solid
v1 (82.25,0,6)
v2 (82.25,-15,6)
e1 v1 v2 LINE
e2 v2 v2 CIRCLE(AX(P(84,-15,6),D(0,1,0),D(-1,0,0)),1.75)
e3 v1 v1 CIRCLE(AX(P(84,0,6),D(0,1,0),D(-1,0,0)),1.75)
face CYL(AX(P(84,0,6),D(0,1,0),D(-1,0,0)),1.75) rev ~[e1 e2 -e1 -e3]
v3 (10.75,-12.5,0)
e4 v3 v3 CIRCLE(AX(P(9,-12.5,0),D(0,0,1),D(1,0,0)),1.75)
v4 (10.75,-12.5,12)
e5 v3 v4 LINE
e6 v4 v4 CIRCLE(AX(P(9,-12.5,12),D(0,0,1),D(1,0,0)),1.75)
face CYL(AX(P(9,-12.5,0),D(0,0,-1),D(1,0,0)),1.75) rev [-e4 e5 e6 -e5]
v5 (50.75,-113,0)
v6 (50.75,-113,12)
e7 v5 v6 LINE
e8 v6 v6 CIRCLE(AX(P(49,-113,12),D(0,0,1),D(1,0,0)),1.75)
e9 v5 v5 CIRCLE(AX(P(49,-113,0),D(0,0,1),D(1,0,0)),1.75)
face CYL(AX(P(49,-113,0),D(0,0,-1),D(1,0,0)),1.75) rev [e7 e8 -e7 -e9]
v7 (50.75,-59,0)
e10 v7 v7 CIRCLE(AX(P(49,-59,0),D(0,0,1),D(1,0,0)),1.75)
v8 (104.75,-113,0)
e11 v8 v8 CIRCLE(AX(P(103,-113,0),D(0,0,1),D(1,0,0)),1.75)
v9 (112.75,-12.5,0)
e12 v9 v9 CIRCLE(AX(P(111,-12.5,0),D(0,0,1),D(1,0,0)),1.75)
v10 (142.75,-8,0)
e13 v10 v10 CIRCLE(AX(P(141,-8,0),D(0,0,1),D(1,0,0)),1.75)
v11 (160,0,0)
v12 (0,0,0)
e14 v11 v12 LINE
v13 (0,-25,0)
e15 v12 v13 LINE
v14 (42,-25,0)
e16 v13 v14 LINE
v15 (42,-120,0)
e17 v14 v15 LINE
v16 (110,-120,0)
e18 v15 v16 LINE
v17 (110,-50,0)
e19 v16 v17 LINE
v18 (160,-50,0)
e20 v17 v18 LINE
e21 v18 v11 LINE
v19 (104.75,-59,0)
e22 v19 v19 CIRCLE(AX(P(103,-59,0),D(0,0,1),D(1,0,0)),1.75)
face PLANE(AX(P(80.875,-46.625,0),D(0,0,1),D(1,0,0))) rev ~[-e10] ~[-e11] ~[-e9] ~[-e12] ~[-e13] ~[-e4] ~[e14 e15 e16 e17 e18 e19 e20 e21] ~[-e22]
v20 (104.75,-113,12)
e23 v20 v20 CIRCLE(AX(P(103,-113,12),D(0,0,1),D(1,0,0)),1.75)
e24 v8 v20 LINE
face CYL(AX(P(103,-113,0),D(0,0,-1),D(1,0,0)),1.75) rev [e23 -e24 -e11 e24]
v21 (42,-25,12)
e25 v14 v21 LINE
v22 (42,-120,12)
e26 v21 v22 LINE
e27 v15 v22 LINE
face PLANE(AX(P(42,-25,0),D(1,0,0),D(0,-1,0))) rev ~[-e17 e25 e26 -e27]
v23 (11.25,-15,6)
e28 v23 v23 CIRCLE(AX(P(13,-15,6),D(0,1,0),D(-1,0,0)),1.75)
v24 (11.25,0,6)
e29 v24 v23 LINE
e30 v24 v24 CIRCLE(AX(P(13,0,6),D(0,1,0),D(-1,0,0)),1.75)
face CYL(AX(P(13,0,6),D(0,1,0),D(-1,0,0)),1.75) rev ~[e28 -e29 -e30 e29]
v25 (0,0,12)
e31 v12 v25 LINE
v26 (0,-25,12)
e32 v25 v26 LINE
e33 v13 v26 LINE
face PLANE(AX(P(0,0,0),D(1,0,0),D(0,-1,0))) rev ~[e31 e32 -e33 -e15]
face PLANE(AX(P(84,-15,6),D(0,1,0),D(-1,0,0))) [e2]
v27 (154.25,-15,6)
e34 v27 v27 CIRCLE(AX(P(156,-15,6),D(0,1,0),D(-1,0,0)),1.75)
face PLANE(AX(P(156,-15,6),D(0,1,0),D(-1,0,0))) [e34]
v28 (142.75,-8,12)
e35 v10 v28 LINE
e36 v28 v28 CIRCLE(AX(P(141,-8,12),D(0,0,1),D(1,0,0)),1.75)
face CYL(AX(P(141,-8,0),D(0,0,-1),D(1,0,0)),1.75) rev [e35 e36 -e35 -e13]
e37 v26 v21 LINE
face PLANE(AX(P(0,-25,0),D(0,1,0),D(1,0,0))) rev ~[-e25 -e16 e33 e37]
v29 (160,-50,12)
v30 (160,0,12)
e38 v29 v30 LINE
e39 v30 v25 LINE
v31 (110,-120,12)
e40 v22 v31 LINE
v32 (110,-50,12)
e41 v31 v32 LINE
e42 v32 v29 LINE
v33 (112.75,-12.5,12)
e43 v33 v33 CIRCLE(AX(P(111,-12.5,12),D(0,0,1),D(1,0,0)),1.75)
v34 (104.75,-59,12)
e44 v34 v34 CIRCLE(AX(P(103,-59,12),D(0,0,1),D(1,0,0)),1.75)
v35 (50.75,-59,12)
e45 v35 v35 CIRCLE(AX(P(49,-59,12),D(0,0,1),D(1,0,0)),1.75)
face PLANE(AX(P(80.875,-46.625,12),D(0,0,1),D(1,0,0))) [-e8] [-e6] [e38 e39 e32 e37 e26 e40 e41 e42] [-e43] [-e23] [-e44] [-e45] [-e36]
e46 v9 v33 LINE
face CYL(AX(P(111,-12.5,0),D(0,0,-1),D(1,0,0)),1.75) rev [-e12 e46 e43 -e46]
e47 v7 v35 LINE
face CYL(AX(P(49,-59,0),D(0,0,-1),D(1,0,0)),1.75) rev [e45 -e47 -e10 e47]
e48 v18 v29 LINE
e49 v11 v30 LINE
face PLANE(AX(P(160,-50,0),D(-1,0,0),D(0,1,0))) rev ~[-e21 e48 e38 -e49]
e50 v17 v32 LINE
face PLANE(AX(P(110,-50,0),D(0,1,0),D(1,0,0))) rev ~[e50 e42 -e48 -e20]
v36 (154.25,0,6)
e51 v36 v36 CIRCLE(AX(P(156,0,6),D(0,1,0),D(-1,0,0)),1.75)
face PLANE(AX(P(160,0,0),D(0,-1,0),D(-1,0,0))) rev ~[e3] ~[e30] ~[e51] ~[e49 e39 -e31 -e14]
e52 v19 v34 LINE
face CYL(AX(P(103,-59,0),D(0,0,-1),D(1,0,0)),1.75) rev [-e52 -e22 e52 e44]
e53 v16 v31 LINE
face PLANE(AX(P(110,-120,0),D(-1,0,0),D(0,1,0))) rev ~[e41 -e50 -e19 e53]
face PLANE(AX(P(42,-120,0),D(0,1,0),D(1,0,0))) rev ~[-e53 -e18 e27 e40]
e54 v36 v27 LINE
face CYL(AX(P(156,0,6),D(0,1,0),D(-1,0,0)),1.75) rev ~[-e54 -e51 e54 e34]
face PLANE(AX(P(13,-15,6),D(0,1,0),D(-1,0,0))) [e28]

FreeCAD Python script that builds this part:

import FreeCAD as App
import Part
import Sketcher
from FreeCAD import Vector


def add_polygon(sketch, points):
    """Adds a closed chain of lines whose ends are joined by coincident constraints."""
    first, n = sketch.GeometryCount, len(points)
    for a, b in zip(points, points[1:] + points[:1]):
        sketch.addGeometry(Part.LineSegment(App.Vector(*a, 0), App.Vector(*b, 0)), False)
    for i in range(n):
        sketch.addConstraint(Sketcher.Constraint("Coincident", first + i, 2, first + (i + 1) % n, 1))

doc = App.newDocument("Part")
body = doc.addObject("PartDesign::Body", "Body")

# Sketch on XY plane
sketch1 = body.newObject("Sketcher::SketchObject", "Sketch")
sketch1.AttachmentSupport = (doc.getObject("XY_Plane"), [""])
sketch1.MapMode = "FlatFace"
add_polygon(sketch1, [(160, 0), (0, 0), (0, -25), (42, -25), (42, -120), (110, -120), (110, -50), (160, -50)])  # lines 0-7
sketch1.addGeometry(Part.Circle(Vector(49, -113, 0), Vector(0, 0, 1), 1.75), False)  # 8
sketch1.addGeometry(Part.Circle(Vector(103, -113, 0), Vector(0, 0, 1), 1.75), False)  # 9
sketch1.addGeometry(Part.Circle(Vector(49, -59, 0), Vector(0, 0, 1), 1.75), False)  # 10
sketch1.addGeometry(Part.Circle(Vector(9, -12.5, 0), Vector(0, 0, 1), 1.75), False)  # 11
sketch1.addGeometry(Part.Circle(Vector(103, -59, 0), Vector(0, 0, 1), 1.75), False)  # 12
sketch1.addGeometry(Part.Circle(Vector(111, -12.5, 0), Vector(0, 0, 1), 1.75), False)  # 13
sketch1.addGeometry(Part.Circle(Vector(141, -8, 0), Vector(0, 0, 1), 1.75), False)  # 14
sketch1.addConstraint([
    Sketcher.Constraint("Horizontal", 0),
    Sketcher.Constraint("Vertical", 1),
    Sketcher.Constraint("Horizontal", 2),
    Sketcher.Constraint("Vertical", 3),
    Sketcher.Constraint("Horizontal", 4),
    Sketcher.Constraint("Vertical", 5),
    Sketcher.Constraint("Horizontal", 6),
    Sketcher.Constraint("Vertical", 7),
    Sketcher.Constraint("Coincident", 0, 2, -1, 1),
    Sketcher.Constraint("Equal", 8, 9),
    Sketcher.Constraint("Equal", 9, 10),
    Sketcher.Constraint("Equal", 10, 11),
    Sketcher.Constraint("Equal", 11, 12),
    Sketcher.Constraint("Equal", 12, 13),
    Sketcher.Constraint("Equal", 13, 14),
    Sketcher.Constraint("Horizontal", 8, 3, 9, 3),
    Sketcher.Constraint("Horizontal", 10, 3, 12, 3),
    Sketcher.Constraint("Horizontal", 11, 3, 13, 3),
    Sketcher.Constraint("Vertical", 8, 3, 10, 3),
    Sketcher.Constraint("Vertical", 9, 3, 12, 3),
    Sketcher.Constraint("Equal", 6, 7),
    Sketcher.Constraint("Diameter", 8, 3.5),
    Sketcher.Constraint("DistanceX", 0, 2, 0, 1, 160.0),
    Sketcher.Constraint("DistanceX", 2, 1, 2, 2, 42.0),
    Sketcher.Constraint("DistanceX", 4, 1, 4, 2, 68.0),
    Sketcher.Constraint("DistanceY", 1, 2, 1, 1, 25.0),
    Sketcher.Constraint("DistanceY", 3, 2, 3, 1, 95.0),
    Sketcher.Constraint("DistanceX", -1, 1, 8, 3, 49.0),
    Sketcher.Constraint("DistanceY", 8, 3, -1, 1, 113.0),
    Sketcher.Constraint("DistanceX", -1, 1, 9, 3, 103.0),
    Sketcher.Constraint("DistanceY", 10, 3, -1, 1, 59.0),
    Sketcher.Constraint("DistanceX", -1, 1, 11, 3, 9.0),
    Sketcher.Constraint("DistanceX", -1, 1, 13, 3, 111.0),
    Sketcher.Constraint("DistanceX", -1, 1, 14, 3, 141.0),
    Sketcher.Constraint("DistanceY", 14, 3, -1, 1, 8.0),
    Sketcher.Constraint("DistanceY", 11, 3, -1, 1, 12.5),
])
pad1 = body.newObject("PartDesign::Pad", "Pad")
pad1.Profile = sketch1
pad1.Length = 12

# Sketch on XZ plane
sketch2 = body.newObject("Sketcher::SketchObject", "Sketch001")
sketch2.AttachmentSupport = (doc.getObject("XZ_Plane"), [""])
sketch2.MapMode = "FlatFace"
sketch2.addGeometry([
    Part.Circle(Vector(156, 6, 0), Vector(0, 0, 1), 1.75),
    Part.Circle(Vector(84, 6, 0), Vector(0, 0, 1), 1.75),
    Part.Circle(Vector(13, 6, 0), Vector(0, 0, 1), 1.75),
], False)
sketch2.addConstraint([
    Sketcher.Constraint("Equal", 0, 1),
    Sketcher.Constraint("Equal", 1, 2),
    Sketcher.Constraint("Horizontal", 0, 3, 1, 3),
    Sketcher.Constraint("Horizontal", 1, 3, 2, 3),
    Sketcher.Constraint("Diameter", 0, 3.5),
    Sketcher.Constraint("DistanceX", -1, 1, 0, 3, 156.0),
    Sketcher.Constraint("DistanceY", -1, 1, 0, 3, 6.0),
    Sketcher.Constraint("DistanceX", -1, 1, 1, 3, 84.0),
    Sketcher.Constraint("DistanceX", -1, 1, 2, 3, 13.0),
])
pocket1 = body.newObject("PartDesign::Pocket", "Pocket")
pocket1.Profile = sketch2
pocket1.Length = 15
pocket1.Reversed = True

doc.recompute()
